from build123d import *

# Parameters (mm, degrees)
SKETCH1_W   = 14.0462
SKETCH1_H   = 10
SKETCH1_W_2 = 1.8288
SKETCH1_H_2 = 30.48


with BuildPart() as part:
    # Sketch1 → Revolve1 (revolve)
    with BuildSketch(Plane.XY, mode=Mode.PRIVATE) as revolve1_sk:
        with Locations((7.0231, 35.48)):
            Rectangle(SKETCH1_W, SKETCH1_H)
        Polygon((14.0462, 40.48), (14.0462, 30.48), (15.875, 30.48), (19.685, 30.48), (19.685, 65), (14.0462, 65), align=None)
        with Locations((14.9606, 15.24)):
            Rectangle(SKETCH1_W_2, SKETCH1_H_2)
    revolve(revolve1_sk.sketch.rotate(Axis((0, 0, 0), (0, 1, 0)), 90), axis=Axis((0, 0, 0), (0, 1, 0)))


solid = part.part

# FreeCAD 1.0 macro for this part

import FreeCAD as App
import Part
import Sketcher

V = App.Vector
Q = App.Units.Quantity

doc = App.newDocument("Part")
body = doc.addObject("PartDesign::Body", "Body")

# Sketch on XY plane
sketch1 = doc.addObject("Sketcher::SketchObject", "Sketch")
body.addObject(sketch1)
sketch1.AttachmentSupport = (doc.XY_Plane, [""])
sketch1.MapMode = "FlatFace"
sketch1.addGeometry([
    Part.LineSegment(V(0, 40.5, 0), V(0, 30.5, 0)),  # 0
    Part.LineSegment(V(0, 30.5, 0), V(14, 30.5, 0)),  # 1
    Part.LineSegment(V(14, 30.5, 0), V(14, 0, 0)),  # 2
    Part.LineSegment(V(14, 0, 0), V(15.9, 0, 0)),  # 3
    Part.LineSegment(V(15.9, 0, 0), V(15.9, 30.5, 0)),  # 4
    Part.LineSegment(V(15.9, 30.5, 0), V(19.7, 30.5, 0)),  # 5
    Part.LineSegment(V(19.7, 30.5, 0), V(19.7, 65, 0)),  # 6
    Part.LineSegment(V(19.7, 65, 0), V(14, 65, 0)),  # 7
    Part.LineSegment(V(14, 65, 0), V(14, 40.5, 0)),  # 8
    Part.LineSegment(V(14, 40.5, 0), V(0, 40.5, 0)),  # 9
], False)
sketch1.addConstraint([
    Sketcher.Constraint("Coincident", 0, 2, 1, 1),
    Sketcher.Constraint("Coincident", 1, 2, 2, 1),
    Sketcher.Constraint("Coincident", 2, 2, 3, 1),
    Sketcher.Constraint("Coincident", 3, 2, 4, 1),
    Sketcher.Constraint("Coincident", 4, 2, 5, 1),
    Sketcher.Constraint("Coincident", 5, 2, 6, 1),
    Sketcher.Constraint("Coincident", 6, 2, 7, 1),
    Sketcher.Constraint("Coincident", 7, 2, 8, 1),
    Sketcher.Constraint("Coincident", 8, 2, 9, 1),
    Sketcher.Constraint("Coincident", 9, 2, 0, 1),
    Sketcher.Constraint("Vertical", 0),
    Sketcher.Constraint("Horizontal", 1),
    Sketcher.Constraint("Vertical", 2),
    Sketcher.Constraint("Horizontal", 3),
    Sketcher.Constraint("Vertical", 4),
    Sketcher.Constraint("Horizontal", 5),
    Sketcher.Constraint("Vertical", 6),
    Sketcher.Constraint("Horizontal", 7),
    Sketcher.Constraint("Vertical", 8),
    Sketcher.Constraint("Horizontal", 9),
    Sketcher.Constraint("PointOnObject", 0, 2, -2),
    Sketcher.Constraint("PointOnObject", 2, 2, -1),
    Sketcher.Constraint("Horizontal", 1, 2, 4, 2),
    Sketcher.Constraint("Vertical", 2, 2, 7, 2),
    Sketcher.Constraint("DistanceY", 2, 2, 2, 1, Q("1.2 in")),
    Sketcher.Constraint("DistanceX", 5, 1, 5, 2, Q("0.15 in")),
    Sketcher.Constraint("DistanceX", 1, 1, 1, 2, Q("0.553 in")),
    Sketcher.Constraint("DistanceX", 3, 1, 3, 2, Q("0.072 in")),
    Sketcher.Constraint("DistanceY", 0, 2, 0, 1, 10.0),
    Sketcher.Constraint("DistanceY", 6, 1, 6, 2, 34.52),
])
revolution = doc.addObject("PartDesign::Revolution", "Revolution")
body.addObject(revolution)
revolution.Profile = sketch1
revolution.ReferenceAxis = (sketch1, ["V_Axis"])
revolution.Angle = 360

doc.recompute()
